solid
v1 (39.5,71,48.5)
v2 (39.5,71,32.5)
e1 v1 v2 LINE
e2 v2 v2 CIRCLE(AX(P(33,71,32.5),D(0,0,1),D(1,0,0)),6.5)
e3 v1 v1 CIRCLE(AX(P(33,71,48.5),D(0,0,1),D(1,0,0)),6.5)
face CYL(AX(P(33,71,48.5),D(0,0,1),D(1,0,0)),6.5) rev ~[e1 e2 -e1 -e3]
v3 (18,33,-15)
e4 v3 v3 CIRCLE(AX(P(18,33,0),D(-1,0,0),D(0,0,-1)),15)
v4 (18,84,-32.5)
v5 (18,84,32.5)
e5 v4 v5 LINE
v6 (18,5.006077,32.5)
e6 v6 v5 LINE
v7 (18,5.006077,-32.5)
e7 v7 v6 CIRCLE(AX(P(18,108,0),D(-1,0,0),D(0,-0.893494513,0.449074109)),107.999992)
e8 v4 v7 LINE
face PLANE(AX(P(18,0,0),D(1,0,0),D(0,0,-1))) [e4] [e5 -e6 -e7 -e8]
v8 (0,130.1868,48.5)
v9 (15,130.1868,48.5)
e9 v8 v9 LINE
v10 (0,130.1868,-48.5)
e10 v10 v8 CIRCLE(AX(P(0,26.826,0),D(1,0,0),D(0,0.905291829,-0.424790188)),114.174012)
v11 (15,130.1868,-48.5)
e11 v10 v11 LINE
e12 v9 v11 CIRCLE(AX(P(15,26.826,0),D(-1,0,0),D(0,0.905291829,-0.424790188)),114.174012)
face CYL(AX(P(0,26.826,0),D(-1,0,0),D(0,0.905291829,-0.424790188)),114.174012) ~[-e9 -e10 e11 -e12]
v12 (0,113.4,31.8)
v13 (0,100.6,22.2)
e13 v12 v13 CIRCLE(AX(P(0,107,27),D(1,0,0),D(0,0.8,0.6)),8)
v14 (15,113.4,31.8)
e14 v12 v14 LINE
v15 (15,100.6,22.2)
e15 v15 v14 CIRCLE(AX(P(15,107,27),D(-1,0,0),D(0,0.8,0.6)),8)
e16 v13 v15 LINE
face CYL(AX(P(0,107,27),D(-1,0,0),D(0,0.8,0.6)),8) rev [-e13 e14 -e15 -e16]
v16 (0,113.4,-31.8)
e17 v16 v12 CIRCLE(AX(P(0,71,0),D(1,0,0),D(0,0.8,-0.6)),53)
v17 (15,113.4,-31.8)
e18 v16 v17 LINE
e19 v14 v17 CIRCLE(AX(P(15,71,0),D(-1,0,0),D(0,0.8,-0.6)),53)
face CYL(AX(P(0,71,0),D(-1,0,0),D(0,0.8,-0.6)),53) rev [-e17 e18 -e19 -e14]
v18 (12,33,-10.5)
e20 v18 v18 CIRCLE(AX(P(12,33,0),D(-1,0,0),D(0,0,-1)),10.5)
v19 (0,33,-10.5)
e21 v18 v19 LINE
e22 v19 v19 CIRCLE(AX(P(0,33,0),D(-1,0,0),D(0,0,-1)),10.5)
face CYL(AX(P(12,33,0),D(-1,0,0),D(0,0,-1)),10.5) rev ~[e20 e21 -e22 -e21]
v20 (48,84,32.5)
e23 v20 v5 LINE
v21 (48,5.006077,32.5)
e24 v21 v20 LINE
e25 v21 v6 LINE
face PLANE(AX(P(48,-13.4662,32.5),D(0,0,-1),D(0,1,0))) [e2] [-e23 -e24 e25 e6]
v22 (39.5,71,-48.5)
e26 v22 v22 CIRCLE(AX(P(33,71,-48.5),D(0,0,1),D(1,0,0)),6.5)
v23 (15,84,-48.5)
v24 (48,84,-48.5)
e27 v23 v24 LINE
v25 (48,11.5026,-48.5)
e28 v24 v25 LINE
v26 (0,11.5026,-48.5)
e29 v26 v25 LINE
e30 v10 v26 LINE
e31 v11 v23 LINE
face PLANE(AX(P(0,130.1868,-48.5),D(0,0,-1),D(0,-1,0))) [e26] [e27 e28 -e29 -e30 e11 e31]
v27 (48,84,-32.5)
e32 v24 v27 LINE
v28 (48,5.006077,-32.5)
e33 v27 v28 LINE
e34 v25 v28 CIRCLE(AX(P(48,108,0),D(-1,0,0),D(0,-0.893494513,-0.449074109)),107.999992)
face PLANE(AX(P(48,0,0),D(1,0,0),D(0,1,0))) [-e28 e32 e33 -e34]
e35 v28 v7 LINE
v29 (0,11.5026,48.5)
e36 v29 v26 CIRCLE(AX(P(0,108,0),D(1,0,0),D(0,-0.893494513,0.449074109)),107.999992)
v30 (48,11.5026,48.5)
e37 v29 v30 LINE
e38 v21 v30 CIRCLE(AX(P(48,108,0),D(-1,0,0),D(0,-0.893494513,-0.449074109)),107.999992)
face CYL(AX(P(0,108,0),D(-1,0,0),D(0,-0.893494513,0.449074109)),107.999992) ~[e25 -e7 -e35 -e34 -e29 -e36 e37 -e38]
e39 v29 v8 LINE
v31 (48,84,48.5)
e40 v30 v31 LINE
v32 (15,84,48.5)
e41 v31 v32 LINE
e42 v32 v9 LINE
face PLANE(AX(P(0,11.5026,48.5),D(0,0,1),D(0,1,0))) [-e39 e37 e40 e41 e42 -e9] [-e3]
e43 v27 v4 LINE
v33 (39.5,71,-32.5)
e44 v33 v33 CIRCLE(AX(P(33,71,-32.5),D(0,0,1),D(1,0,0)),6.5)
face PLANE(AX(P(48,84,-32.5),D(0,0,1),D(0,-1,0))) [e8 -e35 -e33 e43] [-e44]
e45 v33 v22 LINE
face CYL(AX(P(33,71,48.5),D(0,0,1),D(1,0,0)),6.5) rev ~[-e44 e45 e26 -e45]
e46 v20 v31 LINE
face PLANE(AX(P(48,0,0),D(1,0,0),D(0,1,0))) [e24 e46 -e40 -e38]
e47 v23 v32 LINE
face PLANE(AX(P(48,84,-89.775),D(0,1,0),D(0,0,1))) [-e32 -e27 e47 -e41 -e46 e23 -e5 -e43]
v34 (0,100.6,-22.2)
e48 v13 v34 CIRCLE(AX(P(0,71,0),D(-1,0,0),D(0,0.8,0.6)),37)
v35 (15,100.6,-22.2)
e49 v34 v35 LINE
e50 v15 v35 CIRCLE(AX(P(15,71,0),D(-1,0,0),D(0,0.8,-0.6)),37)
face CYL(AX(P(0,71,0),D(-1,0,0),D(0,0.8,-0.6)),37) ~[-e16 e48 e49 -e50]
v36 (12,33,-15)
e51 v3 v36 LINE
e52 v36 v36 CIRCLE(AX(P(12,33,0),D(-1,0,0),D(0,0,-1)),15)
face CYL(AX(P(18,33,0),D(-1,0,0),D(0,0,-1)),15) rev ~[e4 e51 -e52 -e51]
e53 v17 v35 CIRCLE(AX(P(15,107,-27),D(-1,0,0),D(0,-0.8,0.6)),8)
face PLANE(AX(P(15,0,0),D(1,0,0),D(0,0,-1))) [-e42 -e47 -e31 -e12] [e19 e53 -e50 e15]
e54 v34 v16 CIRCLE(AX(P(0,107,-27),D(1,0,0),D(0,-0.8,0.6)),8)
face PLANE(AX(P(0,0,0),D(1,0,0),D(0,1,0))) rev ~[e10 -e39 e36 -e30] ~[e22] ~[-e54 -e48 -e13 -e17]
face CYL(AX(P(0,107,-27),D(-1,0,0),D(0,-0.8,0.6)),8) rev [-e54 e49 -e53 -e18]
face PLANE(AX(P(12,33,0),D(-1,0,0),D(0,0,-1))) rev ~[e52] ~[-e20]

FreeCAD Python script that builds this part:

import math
import FreeCAD as App
import Part
import Sketcher
from FreeCAD import Vector
Q = App.Units.Quantity


def add_polygon(sketch, points):
    """Adds a closed chain of lines whose ends are joined by coincident constraints."""
    first, n = sketch.GeometryCount, len(points)
    for a, b in zip(points, points[1:] + points[:1]):
        sketch.addGeometry(Part.LineSegment(App.Vector(*a, 0), App.Vector(*b, 0)), False)
    for i in range(n):
        sketch.addConstraint(Sketcher.Constraint("Coincident", first + i, 2, first + (i + 1) % n, 1))

doc = App.newDocument("Part")
body = doc.addObject("PartDesign::Body", "Body")

# Sketch on YZ plane
sketch1 = body.newObject("Sketcher::SketchObject", "Sketch")
sketch1.AttachmentSupport = (doc.getObject("YZ_Plane"), [""])
sketch1.MapMode = "FlatFace"
sketch1.addGeometry(Part.LineSegment(Vector(130, 48, 0), Vector(12, 48, 0)), False)
sketch1.addGeometry(Part.ArcOfCircle(Part.Circle(Vector(108, 0, 0), Vector(0, 0, 1), 108), math.radians(153), math.radians(207)), False)
sketch1.addGeometry(Part.LineSegment(Vector(12, -48, 0), Vector(130, -48, 0)), False)
sketch1.addGeometry(Part.ArcOfCircle(Part.Circle(Vector(27, 0, 0), Vector(0, 0, 1), 114), math.radians(-25), math.radians(25)), False)
sketch1.addGeometry(Part.ArcOfCircle(Part.Circle(Vector(71, 0, 0), Vector(0, 0, 1), 53), math.radians(-37), math.radians(37)), False)
sketch1.addGeometry(Part.ArcOfCircle(Part.Circle(Vector(107, -27, 0), Vector(0, 0, 1), 8), math.radians(143), math.radians(323)), False)
sketch1.addGeometry(Part.ArcOfCircle(Part.Circle(Vector(71, 0, 0), Vector(0, 0, 1), 37), math.radians(-37), math.radians(37)), False)
sketch1.addGeometry(Part.ArcOfCircle(Part.Circle(Vector(107, 27, 0), Vector(0, 0, 1), 8), math.radians(37), math.radians(217)), False)
sketch1.addConstraint(Sketcher.Constraint("Coincident", 0, 2, 1, 1))
sketch1.addConstraint(Sketcher.Constraint("Coincident", 1, 2, 2, 1))
sketch1.addConstraint(Sketcher.Constraint("Coincident", 2, 2, 3, 1))
sketch1.addConstraint(Sketcher.Constraint("Coincident", 3, 2, 0, 1))
sketch1.addConstraint(Sketcher.Constraint("Tangent", 4, 1, 5, 2))
sketch1.addConstraint(Sketcher.Constraint("Tangent", 5, 1, 6, 1))
sketch1.addConstraint(Sketcher.Constraint("Tangent", 6, 2, 7, 2))
sketch1.addConstraint(Sketcher.Constraint("Tangent", 7, 1, 4, 2))
sketch1.addConstraint(Sketcher.Constraint("Horizontal", 0))
sketch1.addConstraint(Sketcher.Constraint("Horizontal", 2))
sketch1.addConstraint(Sketcher.Constraint("Coincident", 6, 3, 4, 3))
sketch1.addConstraint(Sketcher.Constraint("Symmetric", 5, 3, 7, 3, -1))
sketch1.addConstraint(Sketcher.Constraint("Symmetric", 0, 2, 1, 2, -1))
sketch1.addConstraint(Sketcher.Constraint("PointOnObject", 3, 3, -1))
sketch1.addConstraint(Sketcher.Constraint("Radius", 1, Q("108 mm")))
sketch1.addConstraint(Sketcher.Constraint("Radius", 5, Q("8 mm")))
sketch1.addConstraint(Sketcher.Constraint("DistanceX", -1, 1, 1, 3, Q("108 mm")))
sketch1.addConstraint(Sketcher.Constraint("Radius", 4, Q("53 mm")))
sketch1.addConstraint(Sketcher.Constraint("DistanceY", 5, 3, 7, 3, Q("54 mm")))
sketch1.addConstraint(Sketcher.Constraint("DistanceY", 1, 2, 0, 2, Q("97 mm")))
sketch1.addConstraint(Sketcher.Constraint("DistanceX", -1, 1, 4, 3, Q("71 mm")))
sketch1.addConstraint(Sketcher.Constraint("Radius", 3, Q("114.174 mm")))
sketch1.addConstraint(Sketcher.Constraint("DistanceX", 0, 2, 0, 1, Q("118.6842 mm")))
pad1 = body.newObject("PartDesign::Pad", "Pad")
pad1.Profile = sketch1
pad1.Length = 48

# Sketch on YZ plane
sketch2 = body.newObject("Sketcher::SketchObject", "Sketch001")
sketch2.AttachmentSupport = (doc.getObject("YZ_Plane"), [""])
sketch2.MapMode = "FlatFace"
sketch2.AttachmentOffset = App.Placement(Vector(0, 0, 48), App.Rotation())
add_polygon(sketch2, [(152, -90), (152, 89), (84, 89), (84, -90)])  # lines 0-3
sketch2.addConstraint(Sketcher.Constraint("Vertical", 0))
sketch2.addConstraint(Sketcher.Constraint("Horizontal", 1))
sketch2.addConstraint(Sketcher.Constraint("Vertical", 2))
sketch2.addConstraint(Sketcher.Constraint("Horizontal", 3))
sketch2.addConstraint(Sketcher.Constraint("DistanceX", -1, 1, 1, 2, Q("84 mm")))
sketch2.addConstraint(Sketcher.Constraint("DistanceX", 1, 2, 1, 1, Q("67.7053 mm")))
sketch2.addConstraint(Sketcher.Constraint("DistanceY", 0, 1, 0, 2, Q("178.4278 mm")))
sketch2.addConstraint(Sketcher.Constraint("DistanceY", 2, 2, -1, 1, Q("89.775 mm")))
pocket1 = body.newObject("PartDesign::Pocket", "Pocket")
pocket1.Profile = sketch2
pocket1.Length = 33

# Sketch on YZ plane
sketch3 = body.newObject("Sketcher::SketchObject", "Sketch002")
sketch3.AttachmentSupport = (doc.getObject("YZ_Plane"), [""])
sketch3.MapMode = "FlatFace"
sketch3.AttachmentOffset = App.Placement(Vector(0, 0, 48), App.Rotation())
add_polygon(sketch3, [(-13, -32), (84, -32), (84, 32), (-13, 32)])  # lines 0-3
sketch3.addConstraint(Sketcher.Constraint("Horizontal", 0))
sketch3.addConstraint(Sketcher.Constraint("Vertical", 1))
sketch3.addConstraint(Sketcher.Constraint("Horizontal", 2))
sketch3.addConstraint(Sketcher.Constraint("Vertical", 3))
sketch3.addConstraint(Sketcher.Constraint("DistanceY", 1, 1, 1, 2, Q("65 mm")))
sketch3.addConstraint(Sketcher.Constraint("DistanceX", -1, 1, 0, 2, Q("84 mm")))
sketch3.addConstraint(Sketcher.Constraint("DistanceY", 0, 2, -1, 1, Q("32.5 mm")))
sketch3.addConstraint(Sketcher.Constraint("DistanceX", 0, 1, 0, 2, Q("97.4662 mm")))
pocket2 = body.newObject("PartDesign::Pocket", "Pocket001")
pocket2.Profile = sketch3
pocket2.Length = 30

# Sketch on XY plane
sketch4 = body.newObject("Sketcher::SketchObject", "Sketch003")
sketch4.AttachmentSupport = (doc.getObject("XY_Plane"), [""])
sketch4.MapMode = "FlatFace"
sketch4.AttachmentOffset = App.Placement(Vector(0, 0, 48.5), App.Rotation())
sketch4.addGeometry(Part.Circle(Vector(33, 71, 0), Vector(0, 0, 1), 6), False)
sketch4.addConstraint(Sketcher.Constraint("Diameter", 0, Q("13 mm")))
sketch4.addConstraint(Sketcher.Constraint("DistanceX", -1, 1, 0, 3, Q("33 mm")))
sketch4.addConstraint(Sketcher.Constraint("DistanceY", -1, 1, 0, 3, Q("71 mm")))
pocket3 = body.newObject("PartDesign::Pocket", "Pocket002")
pocket3.Profile = sketch4
pocket3.Type = "ThroughAll"

# Sketch on YZ plane
sketch5 = body.newObject("Sketcher::SketchObject", "Sketch004")
sketch5.AttachmentSupport = (doc.getObject("YZ_Plane"), [""])
sketch5.MapMode = "FlatFace"
sketch5.AttachmentOffset = App.Placement(Vector(0, 0, 18), App.Rotation())
sketch5.addGeometry(Part.Circle(Vector(33, 0, 0), Vector(0, 0, 1), 10), False)
sketch5.addConstraint(Sketcher.Constraint("PointOnObject", 0, 3, -1))
sketch5.addConstraint(Sketcher.Constraint("Diameter", 0, Q("21 mm")))
sketch5.addConstraint(Sketcher.Constraint("DistanceX", -1, 1, 0, 3, Q("33 mm")))
doc.recompute()
hole = body.newObject("PartDesign::Hole", "Hole")
hole.Profile = sketch5
hole.ThreadType = "None"
hole.Diameter = 21
hole.DepthType = "ThroughAll"
hole.HoleCutType = "Counterbore"
hole.HoleCutDiameter = 30
hole.HoleCutDepth = 6

doc.recompute()
